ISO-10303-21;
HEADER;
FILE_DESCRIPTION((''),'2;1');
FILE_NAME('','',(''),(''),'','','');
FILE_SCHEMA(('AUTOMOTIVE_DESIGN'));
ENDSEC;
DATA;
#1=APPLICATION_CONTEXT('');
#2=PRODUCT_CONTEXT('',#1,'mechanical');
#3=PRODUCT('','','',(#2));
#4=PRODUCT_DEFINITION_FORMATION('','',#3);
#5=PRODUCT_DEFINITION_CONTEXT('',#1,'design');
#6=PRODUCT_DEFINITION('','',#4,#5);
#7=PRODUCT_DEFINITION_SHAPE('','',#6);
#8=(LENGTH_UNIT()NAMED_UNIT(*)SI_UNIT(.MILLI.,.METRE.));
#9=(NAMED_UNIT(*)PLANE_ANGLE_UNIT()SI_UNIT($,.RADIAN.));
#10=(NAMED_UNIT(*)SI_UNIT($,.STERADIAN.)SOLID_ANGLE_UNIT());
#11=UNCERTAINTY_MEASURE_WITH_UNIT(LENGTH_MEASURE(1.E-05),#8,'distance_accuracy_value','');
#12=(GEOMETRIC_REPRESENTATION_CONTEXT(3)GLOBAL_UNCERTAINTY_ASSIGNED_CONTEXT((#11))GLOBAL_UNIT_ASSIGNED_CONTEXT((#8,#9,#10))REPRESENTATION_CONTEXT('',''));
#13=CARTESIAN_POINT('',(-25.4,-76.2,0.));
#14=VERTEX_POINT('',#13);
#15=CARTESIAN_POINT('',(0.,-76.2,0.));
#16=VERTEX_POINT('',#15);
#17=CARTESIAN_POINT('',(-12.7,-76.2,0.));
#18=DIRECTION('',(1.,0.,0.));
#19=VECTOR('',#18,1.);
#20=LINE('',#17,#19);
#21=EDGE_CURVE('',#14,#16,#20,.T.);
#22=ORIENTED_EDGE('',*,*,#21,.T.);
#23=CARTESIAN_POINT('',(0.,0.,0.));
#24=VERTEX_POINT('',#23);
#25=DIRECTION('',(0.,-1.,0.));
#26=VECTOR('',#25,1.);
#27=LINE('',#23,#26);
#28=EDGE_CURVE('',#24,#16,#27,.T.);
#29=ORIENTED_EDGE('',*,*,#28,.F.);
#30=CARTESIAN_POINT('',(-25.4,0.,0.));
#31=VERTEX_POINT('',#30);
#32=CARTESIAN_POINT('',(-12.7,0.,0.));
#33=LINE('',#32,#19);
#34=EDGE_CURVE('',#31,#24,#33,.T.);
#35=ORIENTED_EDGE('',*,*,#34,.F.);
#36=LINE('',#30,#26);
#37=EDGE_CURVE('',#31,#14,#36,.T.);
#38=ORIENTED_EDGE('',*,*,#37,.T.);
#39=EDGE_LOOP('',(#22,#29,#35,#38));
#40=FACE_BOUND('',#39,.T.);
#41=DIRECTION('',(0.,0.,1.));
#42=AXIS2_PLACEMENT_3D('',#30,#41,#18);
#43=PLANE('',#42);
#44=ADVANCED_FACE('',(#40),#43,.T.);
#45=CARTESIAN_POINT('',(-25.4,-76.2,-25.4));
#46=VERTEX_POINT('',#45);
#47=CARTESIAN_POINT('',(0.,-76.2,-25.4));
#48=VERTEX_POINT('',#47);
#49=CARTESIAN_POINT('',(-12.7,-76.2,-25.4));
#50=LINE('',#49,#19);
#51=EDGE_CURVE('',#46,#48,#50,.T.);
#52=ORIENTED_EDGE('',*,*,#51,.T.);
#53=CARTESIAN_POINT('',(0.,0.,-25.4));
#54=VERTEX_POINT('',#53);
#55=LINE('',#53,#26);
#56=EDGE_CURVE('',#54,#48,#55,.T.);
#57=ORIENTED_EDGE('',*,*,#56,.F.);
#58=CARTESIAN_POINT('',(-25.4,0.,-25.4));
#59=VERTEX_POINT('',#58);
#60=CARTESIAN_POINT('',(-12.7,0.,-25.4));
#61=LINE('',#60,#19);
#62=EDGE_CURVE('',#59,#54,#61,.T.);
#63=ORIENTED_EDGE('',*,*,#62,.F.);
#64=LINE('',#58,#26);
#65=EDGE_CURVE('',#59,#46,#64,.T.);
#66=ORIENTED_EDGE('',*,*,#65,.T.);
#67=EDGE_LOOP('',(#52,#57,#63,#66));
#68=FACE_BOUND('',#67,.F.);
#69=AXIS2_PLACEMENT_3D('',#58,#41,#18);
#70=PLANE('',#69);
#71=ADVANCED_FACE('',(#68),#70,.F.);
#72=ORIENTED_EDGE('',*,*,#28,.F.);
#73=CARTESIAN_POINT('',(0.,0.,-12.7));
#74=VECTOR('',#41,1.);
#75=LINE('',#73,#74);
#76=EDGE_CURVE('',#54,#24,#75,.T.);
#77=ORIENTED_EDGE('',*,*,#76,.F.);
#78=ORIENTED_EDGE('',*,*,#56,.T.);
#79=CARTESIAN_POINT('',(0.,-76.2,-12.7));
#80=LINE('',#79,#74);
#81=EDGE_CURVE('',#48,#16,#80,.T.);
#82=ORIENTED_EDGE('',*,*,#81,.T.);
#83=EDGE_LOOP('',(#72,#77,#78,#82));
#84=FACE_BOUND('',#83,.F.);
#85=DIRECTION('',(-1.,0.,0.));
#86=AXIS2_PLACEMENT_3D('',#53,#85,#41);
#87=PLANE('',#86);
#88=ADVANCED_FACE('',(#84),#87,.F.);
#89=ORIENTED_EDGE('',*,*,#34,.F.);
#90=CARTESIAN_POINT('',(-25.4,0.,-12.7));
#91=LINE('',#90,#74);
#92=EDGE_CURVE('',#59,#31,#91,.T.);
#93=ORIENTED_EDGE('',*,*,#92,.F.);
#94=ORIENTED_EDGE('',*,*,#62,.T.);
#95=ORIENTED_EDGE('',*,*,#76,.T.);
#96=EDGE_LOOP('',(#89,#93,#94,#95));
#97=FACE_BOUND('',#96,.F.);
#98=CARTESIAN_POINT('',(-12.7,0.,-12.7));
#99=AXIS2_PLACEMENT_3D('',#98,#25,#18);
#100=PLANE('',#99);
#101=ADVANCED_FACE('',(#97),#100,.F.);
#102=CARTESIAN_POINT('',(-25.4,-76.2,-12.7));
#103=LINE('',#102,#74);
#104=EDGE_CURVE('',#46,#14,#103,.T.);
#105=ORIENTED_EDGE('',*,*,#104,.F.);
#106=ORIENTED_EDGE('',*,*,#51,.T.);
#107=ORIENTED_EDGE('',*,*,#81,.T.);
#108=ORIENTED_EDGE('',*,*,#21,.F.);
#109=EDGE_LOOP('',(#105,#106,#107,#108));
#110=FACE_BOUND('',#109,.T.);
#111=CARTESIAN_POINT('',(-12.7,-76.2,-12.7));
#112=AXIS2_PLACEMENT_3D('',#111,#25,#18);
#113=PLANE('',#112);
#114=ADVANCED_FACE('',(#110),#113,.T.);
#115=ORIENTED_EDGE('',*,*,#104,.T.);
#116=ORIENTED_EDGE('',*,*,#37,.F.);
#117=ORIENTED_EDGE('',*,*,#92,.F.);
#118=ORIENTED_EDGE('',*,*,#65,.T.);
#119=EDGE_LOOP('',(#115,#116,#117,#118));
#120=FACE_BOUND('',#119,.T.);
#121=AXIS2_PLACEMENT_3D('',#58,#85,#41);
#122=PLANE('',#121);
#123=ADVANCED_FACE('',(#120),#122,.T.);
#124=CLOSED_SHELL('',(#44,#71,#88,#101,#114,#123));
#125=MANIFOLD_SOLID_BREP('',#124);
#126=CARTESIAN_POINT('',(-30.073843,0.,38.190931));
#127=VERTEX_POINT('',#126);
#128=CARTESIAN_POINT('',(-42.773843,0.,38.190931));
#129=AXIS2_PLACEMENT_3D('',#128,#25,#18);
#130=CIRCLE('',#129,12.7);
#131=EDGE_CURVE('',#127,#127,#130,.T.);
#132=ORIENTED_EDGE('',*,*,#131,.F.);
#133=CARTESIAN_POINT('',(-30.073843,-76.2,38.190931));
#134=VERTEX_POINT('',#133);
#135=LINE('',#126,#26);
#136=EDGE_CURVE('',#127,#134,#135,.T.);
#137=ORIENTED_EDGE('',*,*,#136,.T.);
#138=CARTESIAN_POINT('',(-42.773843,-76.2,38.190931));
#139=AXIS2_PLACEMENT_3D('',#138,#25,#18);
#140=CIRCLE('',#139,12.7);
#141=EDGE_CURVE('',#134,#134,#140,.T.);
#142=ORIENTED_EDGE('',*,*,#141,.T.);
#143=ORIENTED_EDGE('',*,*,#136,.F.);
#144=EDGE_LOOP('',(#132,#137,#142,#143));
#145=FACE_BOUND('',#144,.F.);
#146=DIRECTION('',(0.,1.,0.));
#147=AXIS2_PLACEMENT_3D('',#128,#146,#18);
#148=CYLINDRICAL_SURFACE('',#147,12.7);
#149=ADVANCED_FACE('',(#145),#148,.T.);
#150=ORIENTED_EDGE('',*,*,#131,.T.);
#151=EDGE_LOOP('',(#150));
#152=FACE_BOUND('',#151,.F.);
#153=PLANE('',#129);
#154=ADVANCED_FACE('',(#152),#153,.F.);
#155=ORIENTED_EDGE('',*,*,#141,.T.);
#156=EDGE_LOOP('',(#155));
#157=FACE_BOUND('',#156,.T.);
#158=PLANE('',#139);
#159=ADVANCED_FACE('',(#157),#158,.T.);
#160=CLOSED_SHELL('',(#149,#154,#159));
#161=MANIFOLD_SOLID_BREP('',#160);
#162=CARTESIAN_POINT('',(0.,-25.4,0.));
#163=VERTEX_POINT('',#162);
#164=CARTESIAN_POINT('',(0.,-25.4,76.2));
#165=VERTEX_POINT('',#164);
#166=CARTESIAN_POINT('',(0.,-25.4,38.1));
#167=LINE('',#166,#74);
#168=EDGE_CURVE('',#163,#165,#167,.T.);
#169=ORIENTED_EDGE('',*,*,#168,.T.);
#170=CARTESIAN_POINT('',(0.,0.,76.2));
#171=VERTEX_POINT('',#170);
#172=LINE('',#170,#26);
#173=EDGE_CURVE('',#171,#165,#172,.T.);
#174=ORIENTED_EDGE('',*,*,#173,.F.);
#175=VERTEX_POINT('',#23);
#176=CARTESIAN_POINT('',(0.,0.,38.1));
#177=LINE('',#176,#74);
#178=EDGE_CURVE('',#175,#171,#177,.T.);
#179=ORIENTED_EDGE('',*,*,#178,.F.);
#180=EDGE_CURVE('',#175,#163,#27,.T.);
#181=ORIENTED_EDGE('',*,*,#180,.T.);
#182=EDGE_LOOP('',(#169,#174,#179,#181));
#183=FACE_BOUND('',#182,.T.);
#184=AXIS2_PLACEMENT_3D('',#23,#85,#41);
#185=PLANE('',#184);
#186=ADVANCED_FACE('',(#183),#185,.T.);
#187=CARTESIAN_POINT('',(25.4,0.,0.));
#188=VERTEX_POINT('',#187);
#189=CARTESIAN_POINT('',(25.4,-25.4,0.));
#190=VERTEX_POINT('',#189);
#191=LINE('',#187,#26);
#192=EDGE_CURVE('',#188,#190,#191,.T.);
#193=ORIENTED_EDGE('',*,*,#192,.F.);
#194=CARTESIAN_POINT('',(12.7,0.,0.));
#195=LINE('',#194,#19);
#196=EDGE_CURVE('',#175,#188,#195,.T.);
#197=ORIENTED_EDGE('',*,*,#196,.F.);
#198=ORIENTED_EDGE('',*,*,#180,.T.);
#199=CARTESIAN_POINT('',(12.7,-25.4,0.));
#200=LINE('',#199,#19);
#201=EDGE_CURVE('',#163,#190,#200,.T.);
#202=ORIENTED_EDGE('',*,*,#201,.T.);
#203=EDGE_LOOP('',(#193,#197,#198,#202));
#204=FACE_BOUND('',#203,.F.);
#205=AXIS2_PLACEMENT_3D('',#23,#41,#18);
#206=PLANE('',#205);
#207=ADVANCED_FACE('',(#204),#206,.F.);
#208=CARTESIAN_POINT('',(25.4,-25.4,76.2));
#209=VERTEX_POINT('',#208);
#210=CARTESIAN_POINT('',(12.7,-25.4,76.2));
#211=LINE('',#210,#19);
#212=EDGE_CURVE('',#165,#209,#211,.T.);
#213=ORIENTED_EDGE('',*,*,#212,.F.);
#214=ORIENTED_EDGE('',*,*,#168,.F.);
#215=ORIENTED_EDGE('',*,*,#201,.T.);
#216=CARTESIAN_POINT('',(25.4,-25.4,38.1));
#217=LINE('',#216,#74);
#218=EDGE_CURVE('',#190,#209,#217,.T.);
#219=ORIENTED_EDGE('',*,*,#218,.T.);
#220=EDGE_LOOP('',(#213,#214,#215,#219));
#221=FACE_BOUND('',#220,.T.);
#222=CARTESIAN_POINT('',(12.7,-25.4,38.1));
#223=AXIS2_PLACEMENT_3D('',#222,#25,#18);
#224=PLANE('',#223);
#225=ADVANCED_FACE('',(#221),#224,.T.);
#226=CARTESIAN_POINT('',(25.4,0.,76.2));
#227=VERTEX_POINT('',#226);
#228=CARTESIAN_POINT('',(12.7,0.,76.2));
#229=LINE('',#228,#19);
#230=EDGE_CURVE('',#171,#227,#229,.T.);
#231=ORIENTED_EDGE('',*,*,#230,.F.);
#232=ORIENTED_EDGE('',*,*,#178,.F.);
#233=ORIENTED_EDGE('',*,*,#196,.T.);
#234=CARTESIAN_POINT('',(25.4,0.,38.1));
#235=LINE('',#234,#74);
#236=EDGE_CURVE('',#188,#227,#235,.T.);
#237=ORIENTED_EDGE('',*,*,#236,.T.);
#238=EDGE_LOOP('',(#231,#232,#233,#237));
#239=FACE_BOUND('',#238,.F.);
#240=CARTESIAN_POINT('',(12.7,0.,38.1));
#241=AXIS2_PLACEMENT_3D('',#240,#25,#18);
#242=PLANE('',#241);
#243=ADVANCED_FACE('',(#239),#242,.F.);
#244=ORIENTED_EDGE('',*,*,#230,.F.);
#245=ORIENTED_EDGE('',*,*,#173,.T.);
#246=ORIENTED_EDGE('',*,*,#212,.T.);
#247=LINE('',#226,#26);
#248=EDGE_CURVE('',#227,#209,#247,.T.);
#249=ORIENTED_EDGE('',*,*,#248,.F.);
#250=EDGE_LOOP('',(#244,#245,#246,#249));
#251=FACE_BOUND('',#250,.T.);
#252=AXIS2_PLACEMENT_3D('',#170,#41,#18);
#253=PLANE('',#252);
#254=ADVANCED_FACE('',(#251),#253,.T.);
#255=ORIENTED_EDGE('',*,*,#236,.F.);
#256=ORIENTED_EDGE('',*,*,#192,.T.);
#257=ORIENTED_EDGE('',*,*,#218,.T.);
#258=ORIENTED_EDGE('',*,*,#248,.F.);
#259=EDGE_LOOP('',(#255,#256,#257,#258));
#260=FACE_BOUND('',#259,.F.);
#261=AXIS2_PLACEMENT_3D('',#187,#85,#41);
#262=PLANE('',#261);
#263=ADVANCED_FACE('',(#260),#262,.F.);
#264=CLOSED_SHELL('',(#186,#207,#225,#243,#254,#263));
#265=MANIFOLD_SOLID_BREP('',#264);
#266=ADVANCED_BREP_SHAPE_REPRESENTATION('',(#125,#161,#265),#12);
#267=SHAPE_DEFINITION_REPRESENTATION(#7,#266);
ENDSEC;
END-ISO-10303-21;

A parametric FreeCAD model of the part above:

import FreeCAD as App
import Part
import Sketcher

V = App.Vector
Q = App.Units.Quantity

doc = App.newDocument("Part")
body = doc.addObject("PartDesign::Body", "Body")

# Sketch on XZ plane
sketch1 = doc.addObject("Sketcher::SketchObject", "Sketch")
body.addObject(sketch1)
sketch1.AttachmentSupport = (doc.XZ_Plane, [""])
sketch1.MapMode = "FlatFace"
sketch1.addGeometry(Part.LineSegment(V(0, 76.2, 0), V(0, 0, 0)), False)
sketch1.addGeometry(Part.LineSegment(V(0, 0, 0), V(25.4, 0, 0)), False)
sketch1.addGeometry(Part.LineSegment(V(25.4, 0, 0), V(25.4, 76.2, 0)), False)
sketch1.addGeometry(Part.LineSegment(V(25.4, 76.2, 0), V(0, 76.2, 0)), False)
sketch1.addConstraint(Sketcher.Constraint("Coincident", 0, 2, 1, 1))
sketch1.addConstraint(Sketcher.Constraint("Coincident", 1, 2, 2, 1))
sketch1.addConstraint(Sketcher.Constraint("Coincident", 2, 2, 3, 1))
sketch1.addConstraint(Sketcher.Constraint("Coincident", 3, 2, 0, 1))
sketch1.addConstraint(Sketcher.Constraint("Vertical", 0))
sketch1.addConstraint(Sketcher.Constraint("Horizontal", 1))
sketch1.addConstraint(Sketcher.Constraint("Vertical", 2))
sketch1.addConstraint(Sketcher.Constraint("Horizontal", 3))
sketch1.addConstraint(Sketcher.Constraint("Coincident", 0, 2, -1, 1))
sketch1.addConstraint(Sketcher.Constraint("DistanceX", 1, 1, 1, 2, Q("1 in")))
sketch1.addConstraint(Sketcher.Constraint("DistanceY", 0, 2, 0, 1, Q("3 in")))
pad1 = doc.addObject("PartDesign::Pad", "Pad")
body.addObject(pad1)
pad1.Profile = sketch1
pad1.Length = Q("1 in")
body2 = doc.addObject("PartDesign::Body", "Body001")

# Sketch on XZ plane
sketch2 = doc.addObject("Sketcher::SketchObject", "Sketch001")
body2.addObject(sketch2)
sketch2.AttachmentSupport = (doc.getObject("XZ_Plane001"), [""])
sketch2.MapMode = "FlatFace"
sketch2.addGeometry(Part.Circle(V(-42.773843, 38.190931, 0), V(0, 0, 1), 12.7), False)
sketch2.addConstraint(Sketcher.Constraint("Diameter", 0, Q("1 in")))
sketch2.addConstraint(Sketcher.Constraint("DistanceY", -1, 1, 0, 3, Q("38.190931 mm")))
sketch2.addConstraint(Sketcher.Constraint("DistanceX", 0, 3, -1, 1, Q("42.773843 mm")))
pad2 = doc.addObject("PartDesign::Pad", "Pad001")
body2.addObject(pad2)
pad2.Profile = sketch2
pad2.Length = Q("3 in")
body3 = doc.addObject("PartDesign::Body", "Body002")

# Sketch on XZ plane
sketch3 = doc.addObject("Sketcher::SketchObject", "Sketch002")
body3.addObject(sketch3)
sketch3.AttachmentSupport = (doc.getObject("XZ_Plane002"), [""])
sketch3.MapMode = "FlatFace"
sketch3.addGeometry(Part.LineSegment(V(-25.4, 0, 0), V(-25.4, -25.4, 0)), False)
sketch3.addGeometry(Part.LineSegment(V(-25.4, -25.4, 0), V(0, -25.4, 0)), False)
sketch3.addGeometry(Part.LineSegment(V(0, -25.4, 0), V(0, 0, 0)), False)
sketch3.addGeometry(Part.LineSegment(V(0, 0, 0), V(-25.4, 0, 0)), False)
sketch3.addConstraint(Sketcher.Constraint("Coincident", 0, 2, 1, 1))
sketch3.addConstraint(Sketcher.Constraint("Coincident", 1, 2, 2, 1))
sketch3.addConstraint(Sketcher.Constraint("Coincident", 2, 2, 3, 1))
sketch3.addConstraint(Sketcher.Constraint("Coincident", 3, 2, 0, 1))
sketch3.addConstraint(Sketcher.Constraint("Vertical", 0))
sketch3.addConstraint(Sketcher.Constraint("Horizontal", 1))
sketch3.addConstraint(Sketcher.Constraint("Vertical", 2))
sketch3.addConstraint(Sketcher.Constraint("Horizontal", 3))
sketch3.addConstraint(Sketcher.Constraint("Coincident", 2, 2, -1, 1))
sketch3.addConstraint(Sketcher.Constraint("Equal", 3, 0))
sketch3.addConstraint(Sketcher.Constraint("DistanceX", 1, 1, 1, 2, Q("1 in")))
pad3 = doc.addObject("PartDesign::Pad", "Pad002")
body3.addObject(pad3)
pad3.Profile = sketch3
pad3.Length = Q("3 in")

doc.recompute()
